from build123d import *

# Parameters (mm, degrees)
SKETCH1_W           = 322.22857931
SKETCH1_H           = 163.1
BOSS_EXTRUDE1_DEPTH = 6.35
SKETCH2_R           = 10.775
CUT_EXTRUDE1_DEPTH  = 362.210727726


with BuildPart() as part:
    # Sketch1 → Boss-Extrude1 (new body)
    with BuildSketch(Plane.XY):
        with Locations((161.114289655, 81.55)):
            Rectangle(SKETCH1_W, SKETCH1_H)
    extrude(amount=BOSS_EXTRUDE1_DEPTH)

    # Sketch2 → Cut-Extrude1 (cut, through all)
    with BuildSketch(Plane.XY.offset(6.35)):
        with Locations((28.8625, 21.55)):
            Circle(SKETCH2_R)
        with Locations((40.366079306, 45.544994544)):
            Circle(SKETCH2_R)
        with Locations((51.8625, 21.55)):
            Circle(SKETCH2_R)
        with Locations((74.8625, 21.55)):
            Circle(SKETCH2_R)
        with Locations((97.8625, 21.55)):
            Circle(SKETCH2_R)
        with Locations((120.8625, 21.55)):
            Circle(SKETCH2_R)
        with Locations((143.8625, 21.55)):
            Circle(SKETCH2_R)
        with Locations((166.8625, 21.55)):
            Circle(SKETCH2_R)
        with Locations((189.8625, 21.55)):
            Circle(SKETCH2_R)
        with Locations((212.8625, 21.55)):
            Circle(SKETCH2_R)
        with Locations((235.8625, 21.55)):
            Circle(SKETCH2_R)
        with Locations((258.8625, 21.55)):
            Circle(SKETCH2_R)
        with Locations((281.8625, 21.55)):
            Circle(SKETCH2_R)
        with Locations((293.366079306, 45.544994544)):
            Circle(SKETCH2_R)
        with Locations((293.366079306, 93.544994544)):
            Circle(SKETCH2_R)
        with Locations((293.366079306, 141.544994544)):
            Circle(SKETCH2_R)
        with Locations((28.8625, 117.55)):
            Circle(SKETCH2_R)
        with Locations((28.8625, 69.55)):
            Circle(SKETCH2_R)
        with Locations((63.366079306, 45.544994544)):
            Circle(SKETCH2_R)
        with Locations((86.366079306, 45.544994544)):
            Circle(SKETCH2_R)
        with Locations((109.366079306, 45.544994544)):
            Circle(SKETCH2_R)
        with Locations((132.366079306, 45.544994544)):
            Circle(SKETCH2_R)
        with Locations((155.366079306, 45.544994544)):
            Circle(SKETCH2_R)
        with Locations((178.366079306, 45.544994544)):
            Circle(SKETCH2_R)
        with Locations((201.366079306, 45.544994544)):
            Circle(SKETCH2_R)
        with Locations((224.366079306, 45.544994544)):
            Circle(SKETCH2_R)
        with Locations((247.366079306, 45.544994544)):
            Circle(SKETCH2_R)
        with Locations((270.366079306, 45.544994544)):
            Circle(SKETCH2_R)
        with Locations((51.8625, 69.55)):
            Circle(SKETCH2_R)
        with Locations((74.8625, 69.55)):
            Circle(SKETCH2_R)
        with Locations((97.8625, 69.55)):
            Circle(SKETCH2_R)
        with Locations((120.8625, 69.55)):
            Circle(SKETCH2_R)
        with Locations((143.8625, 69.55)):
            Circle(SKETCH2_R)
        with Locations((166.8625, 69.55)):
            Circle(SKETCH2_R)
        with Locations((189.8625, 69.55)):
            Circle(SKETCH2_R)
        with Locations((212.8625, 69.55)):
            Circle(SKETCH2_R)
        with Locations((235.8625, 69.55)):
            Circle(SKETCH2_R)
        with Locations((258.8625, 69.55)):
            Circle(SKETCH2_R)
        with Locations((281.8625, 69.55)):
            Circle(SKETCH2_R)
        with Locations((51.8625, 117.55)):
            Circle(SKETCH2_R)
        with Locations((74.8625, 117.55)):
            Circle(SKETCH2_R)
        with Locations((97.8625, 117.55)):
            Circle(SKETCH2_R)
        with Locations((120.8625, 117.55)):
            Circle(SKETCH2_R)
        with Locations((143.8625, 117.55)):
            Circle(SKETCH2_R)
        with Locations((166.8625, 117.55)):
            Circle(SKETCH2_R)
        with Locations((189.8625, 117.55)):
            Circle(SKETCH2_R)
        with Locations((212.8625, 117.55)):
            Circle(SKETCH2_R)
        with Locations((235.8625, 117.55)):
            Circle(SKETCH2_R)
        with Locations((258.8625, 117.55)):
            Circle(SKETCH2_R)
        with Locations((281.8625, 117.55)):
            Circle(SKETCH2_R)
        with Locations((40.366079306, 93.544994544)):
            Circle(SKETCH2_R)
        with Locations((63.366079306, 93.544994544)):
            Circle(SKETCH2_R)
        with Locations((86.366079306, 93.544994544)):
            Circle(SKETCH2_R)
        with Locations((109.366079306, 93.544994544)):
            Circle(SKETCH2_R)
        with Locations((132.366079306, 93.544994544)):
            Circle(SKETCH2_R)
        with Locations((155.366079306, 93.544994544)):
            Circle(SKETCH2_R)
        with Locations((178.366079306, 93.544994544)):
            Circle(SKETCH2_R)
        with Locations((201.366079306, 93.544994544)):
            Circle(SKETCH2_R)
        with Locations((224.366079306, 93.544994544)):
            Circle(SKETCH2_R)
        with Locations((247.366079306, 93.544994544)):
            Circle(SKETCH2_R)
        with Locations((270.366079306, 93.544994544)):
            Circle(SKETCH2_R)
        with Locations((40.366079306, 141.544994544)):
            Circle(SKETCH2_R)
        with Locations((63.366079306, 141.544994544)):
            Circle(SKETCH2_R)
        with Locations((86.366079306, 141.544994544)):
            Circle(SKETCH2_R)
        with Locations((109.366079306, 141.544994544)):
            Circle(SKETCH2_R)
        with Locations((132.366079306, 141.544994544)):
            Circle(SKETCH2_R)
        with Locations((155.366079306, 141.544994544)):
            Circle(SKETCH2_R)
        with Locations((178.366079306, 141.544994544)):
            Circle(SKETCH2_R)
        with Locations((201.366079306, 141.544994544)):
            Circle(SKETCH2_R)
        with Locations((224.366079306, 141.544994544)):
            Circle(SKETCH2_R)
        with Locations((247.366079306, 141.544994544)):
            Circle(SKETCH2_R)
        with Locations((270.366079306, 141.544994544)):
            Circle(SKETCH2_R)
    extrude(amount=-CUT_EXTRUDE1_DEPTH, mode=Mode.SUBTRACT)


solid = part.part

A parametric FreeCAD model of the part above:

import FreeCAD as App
import Part
import Sketcher

V = App.Vector
Q = App.Units.Quantity


def add_polygon(sketch, points):
    """Adds a closed chain of lines whose ends are joined by coincident constraints."""
    first, n = sketch.GeometryCount, len(points)
    for a, b in zip(points, points[1:] + points[:1]):
        sketch.addGeometry(Part.LineSegment(App.Vector(*a, 0), App.Vector(*b, 0)), False)
    for i in range(n):
        sketch.addConstraint(Sketcher.Constraint("Coincident", first + i, 2, first + (i + 1) % n, 1))

doc = App.newDocument("Part")
body = doc.addObject("PartDesign::Body", "Body")

# Sketch on XY plane
sketch1 = body.newObject("Sketcher::SketchObject", "Sketch")
sketch1.AttachmentSupport = (doc.getObject("XY_Plane"), [""])
sketch1.MapMode = "FlatFace"
add_polygon(sketch1, [(0, 163), (0, 0), (322, 0), (322, 163)])  # lines 0-3
sketch1.addConstraint([
    Sketcher.Constraint("Vertical", 0),
    Sketcher.Constraint("Horizontal", 1),
    Sketcher.Constraint("Vertical", 2),
    Sketcher.Constraint("Horizontal", 3),
    Sketcher.Constraint("Coincident", 0, 2, -1, 1),
    Sketcher.Constraint("DistanceY", 0, 2, 0, 1, Q("163.1 mm")),
    Sketcher.Constraint("DistanceX", 1, 1, 1, 2, Q("322.228579 mm")),
])
pad1 = body.newObject("PartDesign::Pad", "Pad")
pad1.Profile = sketch1
pad1.Length = 6.35

# Sketch on XY plane
sketch2 = body.newObject("Sketcher::SketchObject", "Sketch001")
sketch2.AttachmentSupport = (doc.getObject("XY_Plane"), [""])
sketch2.MapMode = "FlatFace"
sketch2.AttachmentOffset = App.Placement(V(0, 0, 6.35), App.Rotation())
sketch2.addGeometry([
    Part.Circle(V(29, 22, 0), V(0, 0, 1), 11),  # 0
    Part.Circle(V(40, 46, 0), V(0, 0, 1), 11),  # 1
    Part.Circle(V(52, 22, 0), V(0, 0, 1), 11),  # 2
    Part.Circle(V(75, 22, 0), V(0, 0, 1), 11),  # 3
    Part.Circle(V(98, 22, 0), V(0, 0, 1), 11),  # 4
    Part.Circle(V(121, 22, 0), V(0, 0, 1), 11),  # 5
    Part.Circle(V(144, 22, 0), V(0, 0, 1), 11),  # 6
    Part.Circle(V(167, 22, 0), V(0, 0, 1), 11),  # 7
    Part.Circle(V(190, 22, 0), V(0, 0, 1), 11),  # 8
    Part.Circle(V(213, 22, 0), V(0, 0, 1), 11),  # 9
    Part.Circle(V(236, 22, 0), V(0, 0, 1), 11),  # 10
    Part.Circle(V(259, 22, 0), V(0, 0, 1), 11),  # 11
    Part.Circle(V(282, 22, 0), V(0, 0, 1), 11),  # 12
    Part.Circle(V(293, 46, 0), V(0, 0, 1), 11),  # 13
    Part.Circle(V(293, 94, 0), V(0, 0, 1), 11),  # 14
    Part.Circle(V(293, 142, 0), V(0, 0, 1), 11),  # 15
    Part.Circle(V(29, 118, 0), V(0, 0, 1), 11),  # 16
    Part.Circle(V(29, 70, 0), V(0, 0, 1), 11),  # 17
    Part.Circle(V(63, 46, 0), V(0, 0, 1), 11),  # 18
    Part.Circle(V(86, 46, 0), V(0, 0, 1), 11),  # 19
    Part.Circle(V(109, 46, 0), V(0, 0, 1), 11),  # 20
    Part.Circle(V(132, 46, 0), V(0, 0, 1), 11),  # 21
    Part.Circle(V(155, 46, 0), V(0, 0, 1), 11),  # 22
    Part.Circle(V(178, 46, 0), V(0, 0, 1), 11),  # 23
    Part.Circle(V(201, 46, 0), V(0, 0, 1), 11),  # 24
    Part.Circle(V(224, 46, 0), V(0, 0, 1), 11),  # 25
    Part.Circle(V(247, 46, 0), V(0, 0, 1), 11),  # 26
    Part.Circle(V(270, 46, 0), V(0, 0, 1), 11),  # 27
    Part.Circle(V(52, 70, 0), V(0, 0, 1), 11),  # 28
    Part.Circle(V(75, 70, 0), V(0, 0, 1), 11),  # 29
    Part.Circle(V(98, 70, 0), V(0, 0, 1), 11),  # 30
    Part.Circle(V(121, 70, 0), V(0, 0, 1), 11),  # 31
    Part.Circle(V(144, 70, 0), V(0, 0, 1), 11),  # 32
    Part.Circle(V(167, 70, 0), V(0, 0, 1), 11),  # 33
    Part.Circle(V(190, 70, 0), V(0, 0, 1), 11),  # 34
    Part.Circle(V(213, 70, 0), V(0, 0, 1), 11),  # 35
    Part.Circle(V(236, 70, 0), V(0, 0, 1), 11),  # 36
    Part.Circle(V(259, 70, 0), V(0, 0, 1), 11),  # 37
    Part.Circle(V(282, 70, 0), V(0, 0, 1), 11),  # 38
    Part.Circle(V(52, 118, 0), V(0, 0, 1), 11),  # 39
    Part.Circle(V(75, 118, 0), V(0, 0, 1), 11),  # 40
    Part.Circle(V(98, 118, 0), V(0, 0, 1), 11),  # 41
    Part.Circle(V(121, 118, 0), V(0, 0, 1), 11),  # 42
    Part.Circle(V(144, 118, 0), V(0, 0, 1), 11),  # 43
    Part.Circle(V(167, 118, 0), V(0, 0, 1), 11),  # 44
    Part.Circle(V(190, 118, 0), V(0, 0, 1), 11),  # 45
    Part.Circle(V(213, 118, 0), V(0, 0, 1), 11),  # 46
    Part.Circle(V(236, 118, 0), V(0, 0, 1), 11),  # 47
    Part.Circle(V(259, 118, 0), V(0, 0, 1), 11),  # 48
    Part.Circle(V(282, 118, 0), V(0, 0, 1), 11),  # 49
    Part.Circle(V(40, 94, 0), V(0, 0, 1), 11),  # 50
    Part.Circle(V(63, 94, 0), V(0, 0, 1), 11),  # 51
    Part.Circle(V(86, 94, 0), V(0, 0, 1), 11),  # 52
    Part.Circle(V(109, 94, 0), V(0, 0, 1), 11),  # 53
    Part.Circle(V(132, 94, 0), V(0, 0, 1), 11),  # 54
    Part.Circle(V(155, 94, 0), V(0, 0, 1), 11),  # 55
    Part.Circle(V(178, 94, 0), V(0, 0, 1), 11),  # 56
    Part.Circle(V(201, 94, 0), V(0, 0, 1), 11),  # 57
    Part.Circle(V(224, 94, 0), V(0, 0, 1), 11),  # 58
    Part.Circle(V(247, 94, 0), V(0, 0, 1), 11),  # 59
    Part.Circle(V(270, 94, 0), V(0, 0, 1), 11),  # 60
    Part.Circle(V(40, 142, 0), V(0, 0, 1), 11),  # 61
    Part.Circle(V(63, 142, 0), V(0, 0, 1), 11),  # 62
    Part.Circle(V(86, 142, 0), V(0, 0, 1), 11),  # 63
    Part.Circle(V(109, 142, 0), V(0, 0, 1), 11),  # 64
    Part.Circle(V(132, 142, 0), V(0, 0, 1), 11),  # 65
    Part.Circle(V(155, 142, 0), V(0, 0, 1), 11),  # 66
    Part.Circle(V(178, 142, 0), V(0, 0, 1), 11),  # 67
    Part.Circle(V(201, 142, 0), V(0, 0, 1), 11),  # 68
    Part.Circle(V(224, 142, 0), V(0, 0, 1), 11),  # 69
    Part.Circle(V(247, 142, 0), V(0, 0, 1), 11),  # 70
    Part.Circle(V(270, 142, 0), V(0, 0, 1), 11),  # 71
], False)
sketch2.addConstraint([
    Sketcher.Constraint("Equal", 0, 1),
    Sketcher.Constraint("Equal", 1, 2),
    Sketcher.Constraint("Equal", 2, 3),
    Sketcher.Constraint("Equal", 3, 4),
    Sketcher.Constraint("Equal", 4, 5),
    Sketcher.Constraint("Equal", 5, 6),
    Sketcher.Constraint("Equal", 6, 7),
    Sketcher.Constraint("Equal", 7, 8),
    Sketcher.Constraint("Equal", 8, 9),
    Sketcher.Constraint("Equal", 9, 10),
    Sketcher.Constraint("Equal", 10, 11),
    Sketcher.Constraint("Equal", 11, 12),
    Sketcher.Constraint("Equal", 12, 13),
    Sketcher.Constraint("Equal", 13, 14),
    Sketcher.Constraint("Equal", 14, 15),
    Sketcher.Constraint("Equal", 15, 16),
    Sketcher.Constraint("Equal", 16, 17),
    Sketcher.Constraint("Equal", 17, 18),
    Sketcher.Constraint("Equal", 18, 19),
    Sketcher.Constraint("Equal", 19, 20),
    Sketcher.Constraint("Equal", 20, 21),
    Sketcher.Constraint("Equal", 21, 22),
    Sketcher.Constraint("Equal", 22, 23),
    Sketcher.Constraint("Equal", 23, 24),
    Sketcher.Constraint("Equal", 24, 25),
    Sketcher.Constraint("Equal", 25, 26),
    Sketcher.Constraint("Equal", 26, 27),
    Sketcher.Constraint("Equal", 27, 28),
    Sketcher.Constraint("Equal", 28, 29),
    Sketcher.Constraint("Equal", 29, 30),
    Sketcher.Constraint("Equal", 30, 31),
    Sketcher.Constraint("Equal", 31, 32),
    Sketcher.Constraint("Equal", 32, 33),
    Sketcher.Constraint("Equal", 33, 34),
    Sketcher.Constraint("Equal", 34, 35),
    Sketcher.Constraint("Equal", 35, 36),
    Sketcher.Constraint("Equal", 36, 37),
    Sketcher.Constraint("Equal", 37, 38),
    Sketcher.Constraint("Equal", 38, 39),
    Sketcher.Constraint("Equal", 39, 40),
    Sketcher.Constraint("Equal", 40, 41),
    Sketcher.Constraint("Equal", 41, 42),
    Sketcher.Constraint("Equal", 42, 43),
    Sketcher.Constraint("Equal", 43, 44),
    Sketcher.Constraint("Equal", 44, 45),
    Sketcher.Constraint("Equal", 45, 46),
    Sketcher.Constraint("Equal", 46, 47),
    Sketcher.Constraint("Equal", 47, 48),
    Sketcher.Constraint("Equal", 48, 49),
    Sketcher.Constraint("Equal", 49, 50),
    Sketcher.Constraint("Equal", 50, 51),
    Sketcher.Constraint("Equal", 51, 52),
    Sketcher.Constraint("Equal", 52, 53),
    Sketcher.Constraint("Equal", 53, 54),
    Sketcher.Constraint("Equal", 54, 55),
    Sketcher.Constraint("Equal", 55, 56),
    Sketcher.Constraint("Equal", 56, 57),
    Sketcher.Constraint("Equal", 57, 58),
    Sketcher.Constraint("Equal", 58, 59),
    Sketcher.Constraint("Equal", 59, 60),
    Sketcher.Constraint("Equal", 60, 61),
    Sketcher.Constraint("Equal", 61, 62),
    Sketcher.Constraint("Equal", 62, 63),
    Sketcher.Constraint("Equal", 63, 64),
    Sketcher.Constraint("Equal", 64, 65),
    Sketcher.Constraint("Equal", 65, 66),
    Sketcher.Constraint("Equal", 66, 67),
    Sketcher.Constraint("Equal", 67, 68),
    Sketcher.Constraint("Equal", 68, 69),
    Sketcher.Constraint("Equal", 69, 70),
    Sketcher.Constraint("Equal", 70, 71),
    Sketcher.Constraint("Horizontal", 0, 3, 2, 3),
    Sketcher.Constraint("Horizontal", 2, 3, 3, 3),
    Sketcher.Constraint("Horizontal", 3, 3, 4, 3),
    Sketcher.Constraint("Horizontal", 4, 3, 5, 3),
    Sketcher.Constraint("Horizontal", 5, 3, 6, 3),
    Sketcher.Constraint("Horizontal", 6, 3, 7, 3),
    Sketcher.Constraint("Horizontal", 7, 3, 8, 3),
    Sketcher.Constraint("Horizontal", 8, 3, 9, 3),
    Sketcher.Constraint("Horizontal", 9, 3, 10, 3),
    Sketcher.Constraint("Horizontal", 10, 3, 11, 3),
    Sketcher.Constraint("Horizontal", 11, 3, 12, 3),
    Sketcher.Constraint("Horizontal", 1, 3, 13, 3),
    Sketcher.Constraint("Horizontal", 13, 3, 18, 3),
    Sketcher.Constraint("Horizontal", 18, 3, 19, 3),
    Sketcher.Constraint("Horizontal", 19, 3, 20, 3),
    Sketcher.Constraint("Horizontal", 20, 3, 21, 3),
    Sketcher.Constraint("Horizontal", 21, 3, 22, 3),
    Sketcher.Constraint("Horizontal", 22, 3, 23, 3),
    Sketcher.Constraint("Horizontal", 23, 3, 24, 3),
    Sketcher.Constraint("Horizontal", 24, 3, 25, 3),
    Sketcher.Constraint("Horizontal", 25, 3, 26, 3),
    Sketcher.Constraint("Horizontal", 26, 3, 27, 3),
    Sketcher.Constraint("Horizontal", 17, 3, 28, 3),
    Sketcher.Constraint("Horizontal", 28, 3, 29, 3),
    Sketcher.Constraint("Horizontal", 29, 3, 30, 3),
    Sketcher.Constraint("Horizontal", 30, 3, 31, 3),
    Sketcher.Constraint("Horizontal", 31, 3, 32, 3),
    Sketcher.Constraint("Horizontal", 32, 3, 33, 3),
    Sketcher.Constraint("Horizontal", 33, 3, 34, 3),
    Sketcher.Constraint("Horizontal", 34, 3, 35, 3),
    Sketcher.Constraint("Horizontal", 35, 3, 36, 3),
    Sketcher.Constraint("Horizontal", 36, 3, 37, 3),
    Sketcher.Constraint("Horizontal", 37, 3, 38, 3),
    Sketcher.Constraint("Horizontal", 16, 3, 39, 3),
    Sketcher.Constraint("Horizontal", 39, 3, 40, 3),
    Sketcher.Constraint("Horizontal", 40, 3, 41, 3),
    Sketcher.Constraint("Horizontal", 41, 3, 42, 3),
    Sketcher.Constraint("Horizontal", 42, 3, 43, 3),
    Sketcher.Constraint("Horizontal", 43, 3, 44, 3),
    Sketcher.Constraint("Horizontal", 44, 3, 45, 3),
    Sketcher.Constraint("Horizontal", 45, 3, 46, 3),
    Sketcher.Constraint("Horizontal", 46, 3, 47, 3),
    Sketcher.Constraint("Horizontal", 47, 3, 48, 3),
    Sketcher.Constraint("Horizontal", 48, 3, 49, 3),
    Sketcher.Constraint("Horizontal", 14, 3, 50, 3),
    Sketcher.Constraint("Horizontal", 50, 3, 51, 3),
    Sketcher.Constraint("Horizontal", 51, 3, 52, 3),
    Sketcher.Constraint("Horizontal", 52, 3, 53, 3),
    Sketcher.Constraint("Horizontal", 53, 3, 54, 3),
    Sketcher.Constraint("Horizontal", 54, 3, 55, 3),
    Sketcher.Constraint("Horizontal", 55, 3, 56, 3),
    Sketcher.Constraint("Horizontal", 56, 3, 57, 3),
    Sketcher.Constraint("Horizontal", 57, 3, 58, 3),
    Sketcher.Constraint("Horizontal", 58, 3, 59, 3),
    Sketcher.Constraint("Horizontal", 59, 3, 60, 3),
    Sketcher.Constraint("Horizontal", 15, 3, 61, 3),
    Sketcher.Constraint("Horizontal", 61, 3, 62, 3),
    Sketcher.Constraint("Horizontal", 62, 3, 63, 3),
    Sketcher.Constraint("Horizontal", 63, 3, 64, 3),
    Sketcher.Constraint("Horizontal", 64, 3, 65, 3),
    Sketcher.Constraint("Horizontal", 65, 3, 66, 3),
    Sketcher.Constraint("Horizontal", 66, 3, 67, 3),
    Sketcher.Constraint("Horizontal", 67, 3, 68, 3),
    Sketcher.Constraint("Horizontal", 68, 3, 69, 3),
    Sketcher.Constraint("Horizontal", 69, 3, 70, 3),
    Sketcher.Constraint("Horizontal", 70, 3, 71, 3),
    Sketcher.Constraint("Vertical", 13, 3, 14, 3),
    Sketcher.Constraint("Vertical", 14, 3, 15, 3),
    Sketcher.Constraint("Vertical", 0, 3, 16, 3),
    Sketcher.Constraint("Vertical", 16, 3, 17, 3),
    Sketcher.Constraint("Vertical", 2, 3, 28, 3),
    Sketcher.Constraint("Vertical", 3, 3, 29, 3),
    Sketcher.Constraint("Vertical", 4, 3, 30, 3),
    Sketcher.Constraint("Vertical", 5, 3, 31, 3),
    Sketcher.Constraint("Vertical", 6, 3, 32, 3),
    Sketcher.Constraint("Vertical", 7, 3, 33, 3),
    Sketcher.Constraint("Vertical", 8, 3, 34, 3),
    Sketcher.Constraint("Vertical", 9, 3, 35, 3),
    Sketcher.Constraint("Vertical", 10, 3, 36, 3),
    Sketcher.Constraint("Vertical", 11, 3, 37, 3),
    Sketcher.Constraint("Vertical", 12, 3, 38, 3),
    Sketcher.Constraint("Vertical", 28, 3, 39, 3),
    Sketcher.Constraint("Vertical", 29, 3, 40, 3),
    Sketcher.Constraint("Vertical", 30, 3, 41, 3),
    Sketcher.Constraint("Vertical", 31, 3, 42, 3),
    Sketcher.Constraint("Vertical", 32, 3, 43, 3),
    Sketcher.Constraint("Vertical", 33, 3, 44, 3),
    Sketcher.Constraint("Vertical", 34, 3, 45, 3),
    Sketcher.Constraint("Vertical", 35, 3, 46, 3),
    Sketcher.Constraint("Vertical", 36, 3, 47, 3),
    Sketcher.Constraint("Vertical", 37, 3, 48, 3),
    Sketcher.Constraint("Vertical", 38, 3, 49, 3),
    Sketcher.Constraint("Vertical", 1, 3, 50, 3),
    Sketcher.Constraint("Vertical", 18, 3, 51, 3),
    Sketcher.Constraint("Vertical", 19, 3, 52, 3),
    Sketcher.Constraint("Vertical", 20, 3, 53, 3),
    Sketcher.Constraint("Vertical", 21, 3, 54, 3),
    Sketcher.Constraint("Vertical", 22, 3, 55, 3),
    Sketcher.Constraint("Vertical", 23, 3, 56, 3),
    Sketcher.Constraint("Vertical", 24, 3, 57, 3),
    Sketcher.Constraint("Vertical", 25, 3, 58, 3),
    Sketcher.Constraint("Vertical", 26, 3, 59, 3),
    Sketcher.Constraint("Vertical", 27, 3, 60, 3),
    Sketcher.Constraint("Vertical", 50, 3, 61, 3),
    Sketcher.Constraint("Vertical", 51, 3, 62, 3),
    Sketcher.Constraint("Vertical", 52, 3, 63, 3),
    Sketcher.Constraint("Vertical", 53, 3, 64, 3),
    Sketcher.Constraint("Vertical", 54, 3, 65, 3),
    Sketcher.Constraint("Vertical", 55, 3, 66, 3),
    Sketcher.Constraint("Vertical", 56, 3, 67, 3),
    Sketcher.Constraint("Vertical", 57, 3, 68, 3),
    Sketcher.Constraint("Vertical", 58, 3, 69, 3),
    Sketcher.Constraint("Vertical", 59, 3, 70, 3),
    Sketcher.Constraint("Vertical", 60, 3, 71, 3),
    Sketcher.Constraint("Diameter", 0, Q("21.55 mm")),
    Sketcher.Constraint("DistanceY", -1, 1, 0, 3, Q("21.55 mm")),
    Sketcher.Constraint("DistanceY", -1, 1, 16, 3, Q("117.55 mm")),
    Sketcher.Constraint("DistanceY", -1, 1, 17, 3, Q("69.55 mm")),
    Sketcher.Constraint("DistanceX", -1, 1, 0, 3, Q("28.8625 mm")),
    Sketcher.Constraint("DistanceX", -1, 1, 2, 3, Q("51.8625 mm")),
    Sketcher.Constraint("DistanceX", -1, 1, 3, 3, Q("74.8625 mm")),
    Sketcher.Constraint("DistanceX", -1, 1, 4, 3, Q("97.8625 mm")),
    Sketcher.Constraint("DistanceX", -1, 1, 5, 3, Q("120.8625 mm")),
    Sketcher.Constraint("DistanceX", -1, 1, 6, 3, Q("143.8625 mm")),
    Sketcher.Constraint("DistanceX", -1, 1, 7, 3, Q("166.8625 mm")),
    Sketcher.Constraint("DistanceX", -1, 1, 8, 3, Q("189.8625 mm")),
    Sketcher.Constraint("DistanceX", -1, 1, 9, 3, Q("212.8625 mm")),
    Sketcher.Constraint("DistanceX", -1, 1, 10, 3, Q("235.8625 mm")),
    Sketcher.Constraint("DistanceX", -1, 1, 11, 3, Q("258.8625 mm")),
    Sketcher.Constraint("DistanceX", -1, 1, 12, 3, Q("281.8625 mm")),
    Sketcher.Constraint("DistanceX", -1, 1, 1, 3, Q("40.366079 mm")),
    Sketcher.Constraint("DistanceX", -1, 1, 13, 3, Q("293.366079 mm")),
    Sketcher.Constraint("DistanceX", -1, 1, 18, 3, Q("63.366079 mm")),
    Sketcher.Constraint("DistanceX", -1, 1, 19, 3, Q("86.366079 mm")),
    Sketcher.Constraint("DistanceX", -1, 1, 20, 3, Q("109.366079 mm")),
    Sketcher.Constraint("DistanceX", -1, 1, 21, 3, Q("132.366079 mm")),
    Sketcher.Constraint("DistanceX", -1, 1, 22, 3, Q("155.366079 mm")),
    Sketcher.Constraint("DistanceX", -1, 1, 23, 3, Q("178.366079 mm")),
    Sketcher.Constraint("DistanceX", -1, 1, 24, 3, Q("201.366079 mm")),
    Sketcher.Constraint("DistanceX", -1, 1, 25, 3, Q("224.366079 mm")),
    Sketcher.Constraint("DistanceX", -1, 1, 26, 3, Q("247.366079 mm")),
    Sketcher.Constraint("DistanceX", -1, 1, 27, 3, Q("270.366079 mm")),
    Sketcher.Constraint("DistanceY", -1, 1, 1, 3, Q("45.544995 mm")),
    Sketcher.Constraint("DistanceY", -1, 1, 14, 3, Q("93.544995 mm")),
    Sketcher.Constraint("DistanceY", -1, 1, 15, 3, Q("141.544995 mm")),
])
pocket1 = body.newObject("PartDesign::Pocket", "Pocket")
pocket1.Profile = sketch2
pocket1.Type = "ThroughAll"

doc.recompute()
